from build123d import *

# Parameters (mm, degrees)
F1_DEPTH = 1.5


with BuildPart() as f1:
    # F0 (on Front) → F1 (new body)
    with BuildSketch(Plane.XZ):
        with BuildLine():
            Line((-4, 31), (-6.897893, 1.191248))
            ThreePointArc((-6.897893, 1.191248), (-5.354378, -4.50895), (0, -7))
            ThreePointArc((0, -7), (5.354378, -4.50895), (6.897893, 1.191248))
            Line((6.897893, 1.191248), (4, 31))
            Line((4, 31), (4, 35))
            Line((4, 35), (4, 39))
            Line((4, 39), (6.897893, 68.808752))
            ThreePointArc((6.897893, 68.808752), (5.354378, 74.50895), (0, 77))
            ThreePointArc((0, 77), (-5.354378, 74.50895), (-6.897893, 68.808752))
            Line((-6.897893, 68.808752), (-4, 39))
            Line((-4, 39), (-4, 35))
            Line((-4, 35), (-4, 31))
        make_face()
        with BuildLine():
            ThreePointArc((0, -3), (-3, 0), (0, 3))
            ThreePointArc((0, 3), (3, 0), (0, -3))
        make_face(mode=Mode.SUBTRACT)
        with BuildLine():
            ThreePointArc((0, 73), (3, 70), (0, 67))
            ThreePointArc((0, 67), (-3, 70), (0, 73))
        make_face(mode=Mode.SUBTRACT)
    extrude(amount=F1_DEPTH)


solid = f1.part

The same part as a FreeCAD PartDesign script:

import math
import FreeCAD as App
import Part
import Sketcher
from FreeCAD import Vector
Q = App.Units.Quantity

doc = App.newDocument("Part")
body = doc.addObject("PartDesign::Body", "Body")

sketch1 = body.newObject("Sketcher::SketchObject", "Sketch")
sketch1.AttachmentSupport = (doc.getObject("XZ_Plane"), [""])
sketch1.MapMode = "FlatFace"
sketch1.addGeometry([
    Part.LineSegment(Vector(-4, 31, 0), Vector(-6.9, 1.2, 0)),
    Part.ArcOfCircle(Part.Circle(Vector(0, 0, 0), Vector(0, 0, 1), 7), math.radians(170), math.radians(270)),
    Part.ArcOfCircle(Part.Circle(Vector(0, 0, 0), Vector(0, 0, 1), 7), math.radians(-90), math.radians(10)),
    Part.LineSegment(Vector(6.9, 1.2, 0), Vector(4, 31, 0)),
    Part.LineSegment(Vector(4, 31, 0), Vector(4, 39, 0)),
    Part.LineSegment(Vector(4, 39, 0), Vector(6.9, 68.8, 0)),
    Part.ArcOfCircle(Part.Circle(Vector(0, 70, 0), Vector(0, 0, 1), 7), math.radians(-10), math.radians(90)),
    Part.ArcOfCircle(Part.Circle(Vector(0, 70, 0), Vector(0, 0, 1), 7), math.radians(90), math.radians(190)),
    Part.LineSegment(Vector(-6.9, 68.8, 0), Vector(-4, 39, 0)),
    Part.LineSegment(Vector(-4, 39, 0), Vector(-4, 31, 0)),
    Part.Circle(Vector(0, 0, 0), Vector(0, 0, 1), 3),
    Part.Circle(Vector(0, 70, 0), Vector(0, 0, 1), 3),
], False)
sketch1.addConstraint([
    Sketcher.Constraint("Coincident", 0, 2, 1, 1),
    Sketcher.Constraint("Tangent", 1, 2, 2, 1),
    Sketcher.Constraint("Coincident", 2, 2, 3, 1),
    Sketcher.Constraint("Coincident", 3, 2, 4, 1),
    Sketcher.Constraint("Coincident", 4, 2, 5, 1),
    Sketcher.Constraint("Coincident", 5, 2, 6, 1),
    Sketcher.Constraint("Tangent", 6, 2, 7, 1),
    Sketcher.Constraint("Coincident", 7, 2, 8, 1),
    Sketcher.Constraint("Coincident", 8, 2, 9, 1),
    Sketcher.Constraint("Coincident", 9, 2, 0, 1),
    Sketcher.Constraint("Vertical", 4),
    Sketcher.Constraint("Vertical", 9),
    Sketcher.Constraint("Coincident", 1, 3, -1, 1),
    Sketcher.Constraint("Coincident", 10, 3, -1, 1),
    Sketcher.Constraint("Coincident", 11, 3, 6, 3),
    Sketcher.Constraint("Equal", 1, 2),
    Sketcher.Constraint("Equal", 2, 6),
    Sketcher.Constraint("Equal", 6, 7),
    Sketcher.Constraint("Equal", 10, 11),
    Sketcher.Constraint("Symmetric", 5, 2, 7, 2, -2),
    Sketcher.Constraint("Symmetric", 4, 2, 8, 2, -2),
    Sketcher.Constraint("PointOnObject", 1, 2, -2),
    Sketcher.Constraint("PointOnObject", 6, 2, -2),
    Sketcher.Constraint("Parallel", 0, 5),
    Sketcher.Constraint("Parallel", 3, 8),
    Sketcher.Constraint("Horizontal", 0, 2, 2, 2),
    Sketcher.Constraint("Vertical", 2, 2, 5, 2),
    Sketcher.Constraint("Diameter", 10, Q("6 mm")),
    Sketcher.Constraint("Radius", 1, Q("7.000001 mm")),
    Sketcher.Constraint("DistanceY", 4, 1, 4, 2, Q("8 mm")),
    Sketcher.Constraint("DistanceY", -1, 1, 6, 3, Q("69.999999 mm")),
    Sketcher.Constraint("DistanceX", -1, 1, 3, 2, Q("4 mm")),
    Sketcher.Constraint("Distance", 0, Q("29.949282 mm")),
])
pad1 = body.newObject("PartDesign::Pad", "Pad")
pad1.Profile = sketch1
pad1.Length = 1.5

doc.recompute()
